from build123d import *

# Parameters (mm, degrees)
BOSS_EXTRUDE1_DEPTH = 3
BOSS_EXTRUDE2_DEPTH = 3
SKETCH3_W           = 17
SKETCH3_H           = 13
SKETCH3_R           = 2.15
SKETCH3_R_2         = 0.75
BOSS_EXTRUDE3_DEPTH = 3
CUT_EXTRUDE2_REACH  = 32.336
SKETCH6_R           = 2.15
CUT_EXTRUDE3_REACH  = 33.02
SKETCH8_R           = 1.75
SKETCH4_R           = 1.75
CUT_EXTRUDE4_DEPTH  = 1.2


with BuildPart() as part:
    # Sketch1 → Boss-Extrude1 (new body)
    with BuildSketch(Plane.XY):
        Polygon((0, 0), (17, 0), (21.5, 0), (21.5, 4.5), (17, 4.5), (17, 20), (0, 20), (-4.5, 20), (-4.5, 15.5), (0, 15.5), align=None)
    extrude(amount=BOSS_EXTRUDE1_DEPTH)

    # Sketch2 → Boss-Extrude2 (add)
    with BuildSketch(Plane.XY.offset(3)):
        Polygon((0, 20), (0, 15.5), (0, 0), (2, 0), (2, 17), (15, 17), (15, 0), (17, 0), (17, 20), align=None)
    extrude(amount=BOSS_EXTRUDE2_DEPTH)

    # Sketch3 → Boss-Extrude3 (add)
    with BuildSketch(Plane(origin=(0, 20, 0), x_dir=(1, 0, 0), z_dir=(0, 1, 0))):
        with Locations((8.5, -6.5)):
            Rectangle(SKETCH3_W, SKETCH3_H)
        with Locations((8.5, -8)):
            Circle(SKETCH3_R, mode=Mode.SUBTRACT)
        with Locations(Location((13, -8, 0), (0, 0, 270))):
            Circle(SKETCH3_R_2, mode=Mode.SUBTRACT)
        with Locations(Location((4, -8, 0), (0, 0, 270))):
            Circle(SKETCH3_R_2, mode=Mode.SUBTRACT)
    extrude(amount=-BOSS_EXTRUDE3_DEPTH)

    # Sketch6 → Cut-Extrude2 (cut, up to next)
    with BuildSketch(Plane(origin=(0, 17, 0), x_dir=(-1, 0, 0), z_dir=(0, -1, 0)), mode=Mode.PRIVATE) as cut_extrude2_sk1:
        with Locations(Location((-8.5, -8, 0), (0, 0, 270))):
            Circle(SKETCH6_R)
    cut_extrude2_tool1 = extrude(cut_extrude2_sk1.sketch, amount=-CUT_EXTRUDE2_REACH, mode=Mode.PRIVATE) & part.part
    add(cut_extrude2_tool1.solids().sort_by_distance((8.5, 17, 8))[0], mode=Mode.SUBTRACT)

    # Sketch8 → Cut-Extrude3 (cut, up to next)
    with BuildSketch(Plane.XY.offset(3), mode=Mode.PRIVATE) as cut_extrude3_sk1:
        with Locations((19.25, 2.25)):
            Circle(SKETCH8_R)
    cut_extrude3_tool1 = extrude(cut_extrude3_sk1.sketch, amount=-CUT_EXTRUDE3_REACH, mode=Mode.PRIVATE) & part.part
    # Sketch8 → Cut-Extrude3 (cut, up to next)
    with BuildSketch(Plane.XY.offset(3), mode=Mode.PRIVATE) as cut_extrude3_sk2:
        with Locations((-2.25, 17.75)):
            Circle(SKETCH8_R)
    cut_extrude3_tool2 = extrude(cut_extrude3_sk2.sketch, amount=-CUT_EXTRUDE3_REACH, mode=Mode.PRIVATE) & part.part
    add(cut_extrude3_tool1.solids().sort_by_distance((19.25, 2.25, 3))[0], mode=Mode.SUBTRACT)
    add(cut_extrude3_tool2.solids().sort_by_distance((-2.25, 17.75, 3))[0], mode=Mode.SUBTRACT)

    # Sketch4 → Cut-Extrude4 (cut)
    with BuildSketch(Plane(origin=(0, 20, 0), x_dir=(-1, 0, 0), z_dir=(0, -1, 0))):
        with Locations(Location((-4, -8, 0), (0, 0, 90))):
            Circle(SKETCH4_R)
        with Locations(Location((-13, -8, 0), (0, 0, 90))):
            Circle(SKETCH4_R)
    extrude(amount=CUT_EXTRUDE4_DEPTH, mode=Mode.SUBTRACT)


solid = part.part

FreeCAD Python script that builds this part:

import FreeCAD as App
import Part
import Sketcher

V = App.Vector
Q = App.Units.Quantity

doc = App.newDocument("Part")
body = doc.addObject("PartDesign::Body", "Body")

sketch1 = body.newObject("Sketcher::SketchObject", "Sketch")
sketch1.AttachmentSupport = (doc.getObject("XY_Plane"), [""])
sketch1.MapMode = "FlatFace"
sketch1.addGeometry(Part.LineSegment(V(0, 0, 0), V(21.5, 0, 0)), False)
sketch1.addGeometry(Part.LineSegment(V(21.5, 0, 0), V(21.5, 4.5, 0)), False)
sketch1.addGeometry(Part.LineSegment(V(21.5, 4.5, 0), V(17, 4.5, 0)), False)
sketch1.addGeometry(Part.LineSegment(V(17, 4.5, 0), V(17, 20, 0)), False)
sketch1.addGeometry(Part.LineSegment(V(17, 20, 0), V(-4.5, 20, 0)), False)
sketch1.addGeometry(Part.LineSegment(V(-4.5, 20, 0), V(-4.5, 15.5, 0)), False)
sketch1.addGeometry(Part.LineSegment(V(-4.5, 15.5, 0), V(0, 15.5, 0)), False)
sketch1.addGeometry(Part.LineSegment(V(0, 15.5, 0), V(0, 0, 0)), False)
sketch1.addConstraint(Sketcher.Constraint("Coincident", 0, 2, 1, 1))
sketch1.addConstraint(Sketcher.Constraint("Coincident", 1, 2, 2, 1))
sketch1.addConstraint(Sketcher.Constraint("Coincident", 2, 2, 3, 1))
sketch1.addConstraint(Sketcher.Constraint("Coincident", 3, 2, 4, 1))
sketch1.addConstraint(Sketcher.Constraint("Coincident", 4, 2, 5, 1))
sketch1.addConstraint(Sketcher.Constraint("Coincident", 5, 2, 6, 1))
sketch1.addConstraint(Sketcher.Constraint("Coincident", 6, 2, 7, 1))
sketch1.addConstraint(Sketcher.Constraint("Coincident", 7, 2, 0, 1))
sketch1.addConstraint(Sketcher.Constraint("Horizontal", 0))
sketch1.addConstraint(Sketcher.Constraint("Vertical", 1))
sketch1.addConstraint(Sketcher.Constraint("Horizontal", 2))
sketch1.addConstraint(Sketcher.Constraint("Vertical", 3))
sketch1.addConstraint(Sketcher.Constraint("Horizontal", 4))
sketch1.addConstraint(Sketcher.Constraint("Vertical", 5))
sketch1.addConstraint(Sketcher.Constraint("Horizontal", 6))
sketch1.addConstraint(Sketcher.Constraint("Vertical", 7))
sketch1.addConstraint(Sketcher.Constraint("Coincident", 7, 2, -1, 1))
sketch1.addConstraint(Sketcher.Constraint("Equal", 0, 4))
sketch1.addConstraint(Sketcher.Constraint("Equal", 6, 1))
sketch1.addConstraint(Sketcher.Constraint("Equal", 1, 5))
sketch1.addConstraint(Sketcher.Constraint("DistanceX", 0, 1, 0, 2, Q("21.5 mm")))
sketch1.addConstraint(Sketcher.Constraint("DistanceX", 2, 2, 2, 1, Q("4.5 mm")))
sketch1.addConstraint(Sketcher.Constraint("DistanceY", 3, 1, 3, 2, Q("15.5 mm")))
pad1 = body.newObject("PartDesign::Pad", "Pad")
pad1.Profile = sketch1
pad1.Length = 3

sketch2 = body.newObject("Sketcher::SketchObject", "Sketch001")
sketch2.AttachmentSupport = (doc.getObject("XY_Plane"), [""])
sketch2.MapMode = "FlatFace"
sketch2.AttachmentOffset = App.Placement(V(0, 0, 3), App.Rotation())
sketch2.addGeometry(Part.LineSegment(V(0, 20, 0), V(0, 0, 0)), False)
sketch2.addGeometry(Part.LineSegment(V(0, 0, 0), V(2, 0, 0)), False)
sketch2.addGeometry(Part.LineSegment(V(2, 0, 0), V(2, 17, 0)), False)
sketch2.addGeometry(Part.LineSegment(V(2, 17, 0), V(15, 17, 0)), False)
sketch2.addGeometry(Part.LineSegment(V(15, 17, 0), V(15, 0, 0)), False)
sketch2.addGeometry(Part.LineSegment(V(15, 0, 0), V(17, 0, 0)), False)
sketch2.addGeometry(Part.LineSegment(V(17, 0, 0), V(17, 20, 0)), False)
sketch2.addGeometry(Part.LineSegment(V(17, 20, 0), V(0, 20, 0)), False)
sketch2.addConstraint(Sketcher.Constraint("Coincident", 0, 2, 1, 1))
sketch2.addConstraint(Sketcher.Constraint("Coincident", 1, 2, 2, 1))
sketch2.addConstraint(Sketcher.Constraint("Coincident", 2, 2, 3, 1))
sketch2.addConstraint(Sketcher.Constraint("Coincident", 3, 2, 4, 1))
sketch2.addConstraint(Sketcher.Constraint("Coincident", 4, 2, 5, 1))
sketch2.addConstraint(Sketcher.Constraint("Coincident", 5, 2, 6, 1))
sketch2.addConstraint(Sketcher.Constraint("Coincident", 6, 2, 7, 1))
sketch2.addConstraint(Sketcher.Constraint("Coincident", 7, 2, 0, 1))
sketch2.addConstraint(Sketcher.Constraint("Vertical", 0))
sketch2.addConstraint(Sketcher.Constraint("Horizontal", 1))
sketch2.addConstraint(Sketcher.Constraint("Vertical", 2))
sketch2.addConstraint(Sketcher.Constraint("Horizontal", 3))
sketch2.addConstraint(Sketcher.Constraint("Vertical", 4))
sketch2.addConstraint(Sketcher.Constraint("Horizontal", 5))
sketch2.addConstraint(Sketcher.Constraint("Vertical", 6))
sketch2.addConstraint(Sketcher.Constraint("Horizontal", 7))
sketch2.addConstraint(Sketcher.Constraint("Coincident", 0, 2, -1, 1))
sketch2.addConstraint(Sketcher.Constraint("PointOnObject", 4, 2, -1))
sketch2.addConstraint(Sketcher.Constraint("Equal", 1, 5))
sketch2.addConstraint(Sketcher.Constraint("Equal", 7, 2))
sketch2.addConstraint(Sketcher.Constraint("DistanceX", 1, 1, 1, 2, Q("2 mm")))
sketch2.addConstraint(Sketcher.Constraint("DistanceX", 3, 1, 3, 2, Q("13 mm")))
sketch2.addConstraint(Sketcher.Constraint("DistanceY", 0, 2, 0, 1, Q("20 mm")))
pad2 = body.newObject("PartDesign::Pad", "Pad001")
pad2.Profile = sketch2
pad2.Length = 3

sketch3 = body.newObject("Sketcher::SketchObject", "Sketch002")
sketch3.AttachmentSupport = (doc.getObject("XZ_Plane"), [""])
sketch3.MapMode = "FlatFace"
sketch3.AttachmentOffset = App.Placement(V(0, 0, -20), App.Rotation())
sketch3.addGeometry(Part.LineSegment(V(0, 0, 0), V(0, 13, 0)), False)
sketch3.addGeometry(Part.LineSegment(V(0, 13, 0), V(17, 13, 0)), False)
sketch3.addGeometry(Part.LineSegment(V(17, 13, 0), V(17, 0, 0)), False)
sketch3.addGeometry(Part.LineSegment(V(17, 0, 0), V(0, 0, 0)), False)
sketch3.addGeometry(Part.Circle(V(4, 8, 0), V(0, 0, 1), 0.75), False)
sketch3.addGeometry(Part.Circle(V(8.5, 8, 0), V(0, 0, 1), 2.15), False)
sketch3.addGeometry(Part.Circle(V(13, 8, 0), V(0, 0, 1), 0.75), False)
sketch3.addConstraint(Sketcher.Constraint("Coincident", 0, 2, 1, 1))
sketch3.addConstraint(Sketcher.Constraint("Coincident", 1, 2, 2, 1))
sketch3.addConstraint(Sketcher.Constraint("Coincident", 2, 2, 3, 1))
sketch3.addConstraint(Sketcher.Constraint("Coincident", 3, 2, 0, 1))
sketch3.addConstraint(Sketcher.Constraint("Vertical", 0))
sketch3.addConstraint(Sketcher.Constraint("Horizontal", 1))
sketch3.addConstraint(Sketcher.Constraint("Vertical", 2))
sketch3.addConstraint(Sketcher.Constraint("Horizontal", 3))
sketch3.addConstraint(Sketcher.Constraint("Coincident", 3, 2, -1, 1))
sketch3.addConstraint(Sketcher.Constraint("Equal", 4, 6))
sketch3.addConstraint(Sketcher.Constraint("Horizontal", 4, 3, 5, 3))
sketch3.addConstraint(Sketcher.Constraint("Horizontal", 5, 3, 6, 3))
sketch3.addConstraint(Sketcher.Constraint("Diameter", 4, Q("1.5 mm")))
sketch3.addConstraint(Sketcher.Constraint("Diameter", 5, Q("4.3 mm")))
sketch3.addConstraint(Sketcher.Constraint("DistanceX", 1, 1, 1, 2, Q("17 mm")))
sketch3.addConstraint(Sketcher.Constraint("DistanceY", 0, 1, 0, 2, Q("13 mm")))
sketch3.addConstraint(Sketcher.Constraint("DistanceX", -1, 1, 4, 3, Q("4 mm")))
sketch3.addConstraint(Sketcher.Constraint("DistanceY", -1, 1, 4, 3, Q("8 mm")))
sketch3.addConstraint(Sketcher.Constraint("DistanceX", -1, 1, 6, 3, Q("13 mm")))
sketch3.addConstraint(Sketcher.Constraint("DistanceX", -1, 1, 5, 3, Q("8.5 mm")))
pad3 = body.newObject("PartDesign::Pad", "Pad002")
pad3.Profile = sketch3
pad3.Length = 3

sketch4 = body.newObject("Sketcher::SketchObject", "Sketch003")
sketch4.AttachmentSupport = (doc.getObject("XZ_Plane"), [""])
sketch4.MapMode = "FlatFace"
sketch4.AttachmentOffset = App.Placement(V(0, 0, -17), App.Rotation())
sketch4.addGeometry(Part.Circle(V(8.5, 8, 0), V(0, 0, 1), 2.15), False)
sketch4.addConstraint(Sketcher.Constraint("Diameter", 0, Q("4.3 mm")))
sketch4.addConstraint(Sketcher.Constraint("DistanceY", -1, 1, 0, 3, Q("8 mm")))
sketch4.addConstraint(Sketcher.Constraint("DistanceX", -1, 1, 0, 3, Q("8.5 mm")))
pocket1 = body.newObject("PartDesign::Pocket", "Pocket")
pocket1.Profile = sketch4
pocket1.Length = 3

sketch5 = body.newObject("Sketcher::SketchObject", "Sketch004")
sketch5.AttachmentSupport = (doc.getObject("XY_Plane"), [""])
sketch5.MapMode = "FlatFace"
sketch5.AttachmentOffset = App.Placement(V(0, 0, 3), App.Rotation())
sketch5.addGeometry(Part.Circle(V(19.25, 2.25, 0), V(0, 0, 1), 1.75), False)
sketch5.addConstraint(Sketcher.Constraint("Diameter", 0, Q("3.5 mm")))
sketch5.addConstraint(Sketcher.Constraint("DistanceX", -1, 1, 0, 3, Q("19.25 mm")))
sketch5.addConstraint(Sketcher.Constraint("DistanceY", -1, 1, 0, 3, Q("2.25 mm")))
pocket2 = body.newObject("PartDesign::Pocket", "Pocket001")
pocket2.Profile = sketch5
pocket2.Type = "UpToFirst"

sketch6 = body.newObject("Sketcher::SketchObject", "Sketch005")
sketch6.AttachmentSupport = (doc.getObject("XY_Plane"), [""])
sketch6.MapMode = "FlatFace"
sketch6.AttachmentOffset = App.Placement(V(0, 0, 3), App.Rotation())
sketch6.addGeometry(Part.Circle(V(-2.25, 17.75, 0), V(0, 0, 1), 1.75), False)
sketch6.addConstraint(Sketcher.Constraint("Diameter", 0, Q("3.5 mm")))
sketch6.addConstraint(Sketcher.Constraint("DistanceX", 0, 3, -1, 1, Q("2.25 mm")))
sketch6.addConstraint(Sketcher.Constraint("DistanceY", -1, 1, 0, 3, Q("17.75 mm")))
pocket3 = body.newObject("PartDesign::Pocket", "Pocket002")
pocket3.Profile = sketch6
pocket3.Type = "UpToFirst"

sketch7 = body.newObject("Sketcher::SketchObject", "Sketch006")
sketch7.AttachmentSupport = (doc.getObject("XZ_Plane"), [""])
sketch7.MapMode = "FlatFace"
sketch7.AttachmentOffset = App.Placement(V(0, 0, -20), App.Rotation())
sketch7.addGeometry(Part.Circle(V(4, 8, 0), V(0, 0, 1), 1.75), False)
sketch7.addGeometry(Part.Circle(V(13, 8, 0), V(0, 0, 1), 1.75), False)
sketch7.addConstraint(Sketcher.Constraint("Equal", 0, 1))
sketch7.addConstraint(Sketcher.Constraint("Horizontal", 0, 3, 1, 3))
sketch7.addConstraint(Sketcher.Constraint("Diameter", 0, Q("3.5 mm")))
sketch7.addConstraint(Sketcher.Constraint("DistanceX", -1, 1, 0, 3, Q("4 mm")))
sketch7.addConstraint(Sketcher.Constraint("DistanceY", -1, 1, 0, 3, Q("8 mm")))
sketch7.addConstraint(Sketcher.Constraint("DistanceX", -1, 1, 1, 3, Q("13 mm")))
pocket4 = body.newObject("PartDesign::Pocket", "Pocket003")
pocket4.Profile = sketch7
pocket4.Length = 1.2
pocket4.Reversed = True

doc.recompute()
